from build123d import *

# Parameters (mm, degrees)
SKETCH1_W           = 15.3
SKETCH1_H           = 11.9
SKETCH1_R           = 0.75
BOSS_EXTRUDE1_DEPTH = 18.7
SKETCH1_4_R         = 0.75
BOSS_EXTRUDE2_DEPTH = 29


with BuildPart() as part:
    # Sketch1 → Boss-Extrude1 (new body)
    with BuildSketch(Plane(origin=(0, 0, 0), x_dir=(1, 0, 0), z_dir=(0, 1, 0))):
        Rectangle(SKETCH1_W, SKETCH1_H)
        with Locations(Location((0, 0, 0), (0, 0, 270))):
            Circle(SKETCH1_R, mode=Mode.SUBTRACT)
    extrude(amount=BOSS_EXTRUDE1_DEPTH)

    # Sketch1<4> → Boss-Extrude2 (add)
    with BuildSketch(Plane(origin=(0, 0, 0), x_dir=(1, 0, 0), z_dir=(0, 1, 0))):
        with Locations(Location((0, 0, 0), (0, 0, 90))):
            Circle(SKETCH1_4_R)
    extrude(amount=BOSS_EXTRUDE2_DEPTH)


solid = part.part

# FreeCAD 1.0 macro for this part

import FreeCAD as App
import Part
import Sketcher
from FreeCAD import Vector

doc = App.newDocument("Part")
body = doc.addObject("PartDesign::Body", "Body")

sketch1 = body.newObject("Sketcher::SketchObject", "Sketch")
sketch1.AttachmentSupport = (doc.getObject("XZ_Plane"), [""])
sketch1.MapMode = "FlatFace"
sketch1.addGeometry(Part.LineSegment(Vector(-7.7, -6, 0), Vector(-7.7, 6, 0)), False)
sketch1.addGeometry(Part.LineSegment(Vector(-7.7, 6, 0), Vector(7.7, 6, 0)), False)
sketch1.addGeometry(Part.LineSegment(Vector(7.7, 6, 0), Vector(7.7, -6, 0)), False)
sketch1.addGeometry(Part.LineSegment(Vector(7.7, -6, 0), Vector(-7.7, -6, 0)), False)
sketch1.addGeometry(Part.Circle(Vector(0, 0, 0), Vector(0, 0, 1), 0.8), False)
sketch1.addConstraint(Sketcher.Constraint("Coincident", 0, 2, 1, 1))
sketch1.addConstraint(Sketcher.Constraint("Coincident", 1, 2, 2, 1))
sketch1.addConstraint(Sketcher.Constraint("Coincident", 2, 2, 3, 1))
sketch1.addConstraint(Sketcher.Constraint("Coincident", 3, 2, 0, 1))
sketch1.addConstraint(Sketcher.Constraint("Vertical", 0))
sketch1.addConstraint(Sketcher.Constraint("Horizontal", 1))
sketch1.addConstraint(Sketcher.Constraint("Vertical", 2))
sketch1.addConstraint(Sketcher.Constraint("Horizontal", 3))
sketch1.addConstraint(Sketcher.Constraint("Coincident", 4, 3, -1, 1))
sketch1.addConstraint(Sketcher.Constraint("Symmetric", 0, 2, 2, 2, -1, 1))
sketch1.addConstraint(Sketcher.Constraint("Diameter", 4, 1.5))
sketch1.addConstraint(Sketcher.Constraint("DistanceX", 1, 1, 1, 2, 15.3))
sketch1.addConstraint(Sketcher.Constraint("DistanceY", 0, 1, 0, 2, 11.9))
pad1 = body.newObject("PartDesign::Pad", "Pad")
pad1.Profile = sketch1
pad1.Length = 18.7
pad1.Reversed = True

sketch2 = body.newObject("Sketcher::SketchObject", "Sketch001")
sketch2.AttachmentSupport = (doc.getObject("XZ_Plane"), [""])
sketch2.MapMode = "FlatFace"
sketch2.addGeometry(Part.Circle(Vector(0, 0, 0), Vector(0, 0, 1), 0.8), False)
sketch2.addConstraint(Sketcher.Constraint("Coincident", 0, 3, -1, 1))
sketch2.addConstraint(Sketcher.Constraint("Diameter", 0, 1.5))
pad2 = body.newObject("PartDesign::Pad", "Pad001")
pad2.Profile = sketch2
pad2.Length = 29
pad2.Reversed = True

doc.recompute()
